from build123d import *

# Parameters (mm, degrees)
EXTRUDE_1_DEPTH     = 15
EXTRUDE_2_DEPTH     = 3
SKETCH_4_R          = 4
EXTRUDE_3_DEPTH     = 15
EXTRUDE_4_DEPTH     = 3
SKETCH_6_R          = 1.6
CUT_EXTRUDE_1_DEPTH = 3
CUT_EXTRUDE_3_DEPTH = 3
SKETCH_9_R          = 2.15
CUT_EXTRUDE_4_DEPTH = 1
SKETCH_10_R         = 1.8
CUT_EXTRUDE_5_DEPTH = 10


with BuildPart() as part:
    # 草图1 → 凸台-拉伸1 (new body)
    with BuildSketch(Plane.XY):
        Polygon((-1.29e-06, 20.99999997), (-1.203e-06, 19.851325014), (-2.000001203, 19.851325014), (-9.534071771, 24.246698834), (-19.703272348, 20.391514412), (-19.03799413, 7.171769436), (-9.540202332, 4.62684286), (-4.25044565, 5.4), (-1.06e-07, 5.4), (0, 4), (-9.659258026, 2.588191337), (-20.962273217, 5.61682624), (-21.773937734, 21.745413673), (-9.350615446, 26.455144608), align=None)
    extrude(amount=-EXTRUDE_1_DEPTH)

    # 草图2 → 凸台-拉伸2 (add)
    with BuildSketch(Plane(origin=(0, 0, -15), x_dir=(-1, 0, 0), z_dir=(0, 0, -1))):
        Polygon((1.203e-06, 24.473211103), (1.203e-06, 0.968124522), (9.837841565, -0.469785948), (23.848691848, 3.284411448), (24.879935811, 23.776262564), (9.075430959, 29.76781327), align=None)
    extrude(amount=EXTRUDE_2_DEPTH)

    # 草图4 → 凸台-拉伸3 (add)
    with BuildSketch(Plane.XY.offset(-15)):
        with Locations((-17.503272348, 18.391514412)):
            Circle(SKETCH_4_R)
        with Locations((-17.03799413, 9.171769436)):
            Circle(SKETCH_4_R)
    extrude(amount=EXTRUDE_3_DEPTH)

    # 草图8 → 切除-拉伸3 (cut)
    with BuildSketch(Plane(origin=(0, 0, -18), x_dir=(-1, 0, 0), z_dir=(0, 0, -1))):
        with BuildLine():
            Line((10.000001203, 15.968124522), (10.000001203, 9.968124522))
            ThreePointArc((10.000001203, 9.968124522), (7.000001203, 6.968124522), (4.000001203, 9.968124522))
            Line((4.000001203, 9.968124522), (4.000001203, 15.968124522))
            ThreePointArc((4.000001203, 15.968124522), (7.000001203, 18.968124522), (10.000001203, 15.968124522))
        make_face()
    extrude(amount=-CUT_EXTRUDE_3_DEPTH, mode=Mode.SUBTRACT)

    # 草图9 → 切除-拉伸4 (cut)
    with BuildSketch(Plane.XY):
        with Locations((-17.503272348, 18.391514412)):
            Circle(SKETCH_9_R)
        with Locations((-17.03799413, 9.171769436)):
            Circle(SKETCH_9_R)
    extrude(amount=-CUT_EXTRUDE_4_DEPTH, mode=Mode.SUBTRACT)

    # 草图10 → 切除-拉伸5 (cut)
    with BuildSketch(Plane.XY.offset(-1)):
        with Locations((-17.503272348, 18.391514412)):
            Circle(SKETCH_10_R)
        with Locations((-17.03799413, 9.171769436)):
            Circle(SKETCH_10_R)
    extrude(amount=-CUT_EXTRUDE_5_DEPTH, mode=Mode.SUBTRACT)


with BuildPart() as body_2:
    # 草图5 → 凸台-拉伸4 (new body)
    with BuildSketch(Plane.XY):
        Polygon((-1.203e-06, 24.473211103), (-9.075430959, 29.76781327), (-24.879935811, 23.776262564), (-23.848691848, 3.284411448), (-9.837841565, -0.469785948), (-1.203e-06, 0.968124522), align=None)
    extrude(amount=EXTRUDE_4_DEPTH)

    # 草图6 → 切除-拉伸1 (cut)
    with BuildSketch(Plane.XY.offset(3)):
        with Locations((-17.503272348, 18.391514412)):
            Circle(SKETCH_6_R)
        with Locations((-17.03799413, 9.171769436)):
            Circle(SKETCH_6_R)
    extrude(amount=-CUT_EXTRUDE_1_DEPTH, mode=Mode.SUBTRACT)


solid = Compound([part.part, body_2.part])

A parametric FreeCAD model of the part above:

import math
import FreeCAD as App
import Part
import Sketcher
Q = App.Units.Quantity


def add_polygon(sketch, points):
    """Adds a closed chain of lines whose ends are joined by coincident constraints."""
    first, n = sketch.GeometryCount, len(points)
    for a, b in zip(points, points[1:] + points[:1]):
        sketch.addGeometry(Part.LineSegment(App.Vector(*a, 0), App.Vector(*b, 0)), False)
    for i in range(n):
        sketch.addConstraint(Sketcher.Constraint("Coincident", first + i, 2, first + (i + 1) % n, 1))

doc = App.newDocument("Part")
body = doc.addObject("PartDesign::Body", "Body")

sketch1 = body.newObject("Sketcher::SketchObject", "Sketch")
sketch1.AttachmentSupport = (doc.getObject("XY_Plane"), [""])
sketch1.MapMode = "FlatFace"
add_polygon(sketch1, [(0, 19.9), (0, 21), (-9.4, 26.5), (-21.8, 21.7), (-21, 5.6), (-9.7, 2.6), (0, 4), (0, 5.4), (-4.3, 5.4), (-9.5, 4.6), (-19, 7.2), (-19.7, 20.4), (-9.5, 24.2), (-2, 19.9)])
sketch1.addConstraint(Sketcher.Constraint("Vertical", 0))
sketch1.addConstraint(Sketcher.Constraint("Vertical", 6))
sketch1.addConstraint(Sketcher.Constraint("Horizontal", 7))
sketch1.addConstraint(Sketcher.Constraint("Horizontal", 13))
sketch1.addConstraint(Sketcher.Constraint("PointOnObject", 0, 2, -2))
sketch1.addConstraint(Sketcher.Constraint("PointOnObject", 5, 2, -2))
sketch1.addConstraint(Sketcher.Constraint("Parallel", 5, 8))
sketch1.addConstraint(Sketcher.Constraint("Parallel", 4, 9))
sketch1.addConstraint(Sketcher.Constraint("Parallel", 3, 10))
sketch1.addConstraint(Sketcher.Constraint("Parallel", 2, 11))
sketch1.addConstraint(Sketcher.Constraint("Parallel", 1, 12))
sketch1.addConstraint(Sketcher.Constraint("DistanceX", 13, 1, 13, 2, 2.0))
sketch1.addConstraint(Sketcher.Constraint("Angle", 4, Q("-15.000005 deg")))
sketch1.addConstraint(Sketcher.Constraint("DistanceY", 6, 1, 6, 2, 1.4))
sketch1.addConstraint(Sketcher.Constraint("DistanceY", -1, 1, 0, 2, 21.0))
sketch1.addConstraint(Sketcher.Constraint("DistanceY", -1, 1, 5, 2, 4.0))
sketch1.addConstraint(Sketcher.Constraint("DistanceX", 3, 2, 10, 2, 1.259001))
sketch1.addConstraint(Sketcher.Constraint("Distance", 2, 13.286102))
sketch1.addConstraint(Sketcher.Constraint("DistanceY", -1, 1, 11, 2, 24.246699))
sketch1.addConstraint(Sketcher.Constraint("DistanceY", 10, 2, 2, 2, 1.353899))
sketch1.addConstraint(Sketcher.Constraint("DistanceX", 10, 2, 11, 2, 10.169201))
sketch1.addConstraint(Sketcher.Constraint("Distance", 5, 9.761889))
sketch1.addConstraint(Sketcher.Constraint("Distance", 8, 5.345961))
sketch1.addConstraint(Sketcher.Constraint("DistanceX", 7, 2, 7, 1, 4.250446))
sketch1.addConstraint(Sketcher.Constraint("DistanceY", 0, 1, 0, 2, 1.148675))
sketch1.addConstraint(Sketcher.Constraint("DistanceX", 4, 2, -1, 1, 9.659258))
sketch1.addConstraint(Sketcher.Constraint("DistanceY", -1, 1, 9, 2, 7.171769))
sketch1.addConstraint(Sketcher.Constraint("DistanceX", 11, 2, -1, 1, 9.534072))
pad1 = body.newObject("PartDesign::Pad", "Pad")
pad1.Profile = sketch1
pad1.Length = 15
pad1.Reversed = True

sketch2 = body.newObject("Sketcher::SketchObject", "Sketch001")
sketch2.AttachmentSupport = (doc.getObject("XY_Plane"), [""])
sketch2.MapMode = "FlatFace"
sketch2.AttachmentOffset = App.Placement(App.Vector(0, 0, -15), App.Rotation())
add_polygon(sketch2, [(0, 24), (0, 1), (-10, 0), (-24, 3), (-25, 24), (-9, 30)])
sketch2.addConstraint(Sketcher.Constraint("Vertical", 0))
sketch2.addConstraint(Sketcher.Constraint("PointOnObject", 0, 2, -2))
sketch2.addConstraint(Sketcher.Constraint("Angle", 2, Q("164.999995 deg")))
sketch2.addConstraint(Sketcher.Constraint("Distance", 2, 14.5051))
sketch2.addConstraint(Sketcher.Constraint("DistanceY", 1, 2, 4, 2, 30.237599))
sketch2.addConstraint(Sketcher.Constraint("DistanceY", 2, 2, 5, 2, 21.1888))
sketch2.addConstraint(Sketcher.Constraint("Distance", 1, 9.942368))
sketch2.addConstraint(Sketcher.Constraint("Distance", 5, 10.506961))
sketch2.addConstraint(Sketcher.Constraint("DistanceY", 0, 2, 0, 1, 23.505087))
sketch2.addConstraint(Sketcher.Constraint("DistanceY", -1, 1, 2, 2, 3.284411))
sketch2.addConstraint(Sketcher.Constraint("DistanceY", 2, 2, 3, 2, 20.491851))
sketch2.addConstraint(Sketcher.Constraint("Distance", 3, 20.517783))
pad2 = body.newObject("PartDesign::Pad", "Pad001")
pad2.Profile = sketch2
pad2.Length = 3
pad2.Reversed = True

sketch3 = body.newObject("Sketcher::SketchObject", "Sketch002")
sketch3.AttachmentSupport = (doc.getObject("XY_Plane"), [""])
sketch3.MapMode = "FlatFace"
sketch3.AttachmentOffset = App.Placement(App.Vector(0, 0, -15), App.Rotation())
sketch3.addGeometry(Part.Circle(App.Vector(-17.5, 18.4, 0), App.Vector(0, 0, 1), 4), False)
sketch3.addGeometry(Part.Circle(App.Vector(-17, 9.2, 0), App.Vector(0, 0, 1), 4), False)
sketch3.addConstraint(Sketcher.Constraint("Equal", 0, 1))
sketch3.addConstraint(Sketcher.Constraint("Diameter", 0, 8.0))
sketch3.addConstraint(Sketcher.Constraint("DistanceY", -1, 1, 1, 3, 9.171769))
sketch3.addConstraint(Sketcher.Constraint("DistanceX", 0, 3, 1, 3, 0.465278))
sketch3.addConstraint(Sketcher.Constraint("DistanceX", 0, 3, -1, 1, 17.503272))
sketch3.addConstraint(Sketcher.Constraint("DistanceY", -1, 1, 0, 3, 18.391514))
pad3 = body.newObject("PartDesign::Pad", "Pad002")
pad3.Profile = sketch3
pad3.Length = 15

sketch4 = body.newObject("Sketcher::SketchObject", "Sketch003")
sketch4.AttachmentSupport = (doc.getObject("XY_Plane"), [""])
sketch4.MapMode = "FlatFace"
sketch4.AttachmentOffset = App.Placement(App.Vector(0, 0, -18), App.Rotation())
sketch4.addGeometry(Part.LineSegment(App.Vector(-10, 10, 0), App.Vector(-10, 16, 0)), False)
sketch4.addGeometry(Part.ArcOfCircle(Part.Circle(App.Vector(-7, 16, 0), App.Vector(0, 0, 1), 3), math.radians(0), math.radians(180)), False)
sketch4.addGeometry(Part.LineSegment(App.Vector(-4, 16, 0), App.Vector(-4, 10, 0)), False)
sketch4.addGeometry(Part.ArcOfCircle(Part.Circle(App.Vector(-7, 10, 0), App.Vector(0, 0, 1), 3), math.radians(180), math.radians(360)), False)
sketch4.addConstraint(Sketcher.Constraint("Tangent", 0, 2, 1, 2))
sketch4.addConstraint(Sketcher.Constraint("Tangent", 1, 1, 2, 1))
sketch4.addConstraint(Sketcher.Constraint("Tangent", 2, 2, 3, 2))
sketch4.addConstraint(Sketcher.Constraint("Tangent", 3, 1, 0, 1))
sketch4.addConstraint(Sketcher.Constraint("Vertical", 0))
sketch4.addConstraint(Sketcher.Constraint("Vertical", 2))
sketch4.addConstraint(Sketcher.Constraint("Radius", 1, 3.0))
sketch4.addConstraint(Sketcher.Constraint("DistanceY", 0, 1, 0, 2, 6.0))
sketch4.addConstraint(Sketcher.Constraint("DistanceX", 1, 3, -1, 1, 7.000001))
sketch4.addConstraint(Sketcher.Constraint("DistanceY", -1, 1, 1, 3, 15.968125))
pocket1 = body.newObject("PartDesign::Pocket", "Pocket")
pocket1.Profile = sketch4
pocket1.Length = 3
pocket1.Reversed = True

sketch5 = body.newObject("Sketcher::SketchObject", "Sketch004")
sketch5.AttachmentSupport = (doc.getObject("XY_Plane"), [""])
sketch5.MapMode = "FlatFace"
sketch5.addGeometry(Part.Circle(App.Vector(-17.5, 18.4, 0), App.Vector(0, 0, 1), 2.1), False)
sketch5.addGeometry(Part.Circle(App.Vector(-17, 9.2, 0), App.Vector(0, 0, 1), 2.1), False)
sketch5.addConstraint(Sketcher.Constraint("Equal", 0, 1))
sketch5.addConstraint(Sketcher.Constraint("Diameter", 0, 4.3))
sketch5.addConstraint(Sketcher.Constraint("DistanceY", -1, 1, 1, 3, 9.171769))
sketch5.addConstraint(Sketcher.Constraint("DistanceX", 0, 3, 1, 3, 0.465278))
sketch5.addConstraint(Sketcher.Constraint("DistanceX", 0, 3, -1, 1, 17.503272))
sketch5.addConstraint(Sketcher.Constraint("DistanceY", -1, 1, 0, 3, 18.391514))
pocket2 = body.newObject("PartDesign::Pocket", "Pocket001")
pocket2.Profile = sketch5
pocket2.Length = 1

sketch6 = body.newObject("Sketcher::SketchObject", "Sketch005")
sketch6.AttachmentSupport = (doc.getObject("XY_Plane"), [""])
sketch6.MapMode = "FlatFace"
sketch6.AttachmentOffset = App.Placement(App.Vector(0, 0, -1), App.Rotation())
sketch6.addGeometry(Part.Circle(App.Vector(-17.5, 18.4, 0), App.Vector(0, 0, 1), 1.8), False)
sketch6.addGeometry(Part.Circle(App.Vector(-17, 9.2, 0), App.Vector(0, 0, 1), 1.8), False)
sketch6.addConstraint(Sketcher.Constraint("Equal", 0, 1))
sketch6.addConstraint(Sketcher.Constraint("Diameter", 0, 3.6))
sketch6.addConstraint(Sketcher.Constraint("DistanceY", -1, 1, 1, 3, 9.171769))
sketch6.addConstraint(Sketcher.Constraint("DistanceX", 0, 3, 1, 3, 0.465278))
sketch6.addConstraint(Sketcher.Constraint("DistanceX", 0, 3, -1, 1, 17.503272))
sketch6.addConstraint(Sketcher.Constraint("DistanceY", -1, 1, 0, 3, 18.391514))
pocket3 = body.newObject("PartDesign::Pocket", "Pocket002")
pocket3.Profile = sketch6
pocket3.Length = 10
body2 = doc.addObject("PartDesign::Body", "Body001")

sketch7 = body2.newObject("Sketcher::SketchObject", "Sketch006")
sketch7.AttachmentSupport = (doc.getObject("XY_Plane001"), [""])
sketch7.MapMode = "FlatFace"
add_polygon(sketch7, [(0, 24), (-9, 30), (-25, 24), (-24, 3), (-10, 0), (0, 1)])
sketch7.addConstraint(Sketcher.Constraint("Vertical", 5))
sketch7.addConstraint(Sketcher.Constraint("PointOnObject", 4, 2, -2))
sketch7.addConstraint(Sketcher.Constraint("Angle", 3, Q("-15.000005 deg")))
sketch7.addConstraint(Sketcher.Constraint("Distance", 3, 14.5051))
sketch7.addConstraint(Sketcher.Constraint("DistanceY", 2, 2, 0, 2, 26.483402))
sketch7.addConstraint(Sketcher.Constraint("DistanceY", 2, 2, 5, 2, 21.1888))
sketch7.addConstraint(Sketcher.Constraint("Distance", 0, 10.506961))
sketch7.addConstraint(Sketcher.Constraint("Distance", 4, 9.942368))
sketch7.addConstraint(Sketcher.Constraint("DistanceY", 5, 1, 5, 2, 23.505087))
sketch7.addConstraint(Sketcher.Constraint("DistanceY", -1, 1, 2, 2, 3.284411))
sketch7.addConstraint(Sketcher.Constraint("DistanceY", 1, 2, 0, 2, 5.991551))
sketch7.addConstraint(Sketcher.Constraint("Distance", 1, 16.902102))
pad4 = body2.newObject("PartDesign::Pad", "Pad003")
pad4.Profile = sketch7
pad4.Length = 3

sketch8 = body2.newObject("Sketcher::SketchObject", "Sketch007")
sketch8.AttachmentSupport = (doc.getObject("XY_Plane001"), [""])
sketch8.MapMode = "FlatFace"
sketch8.AttachmentOffset = App.Placement(App.Vector(0, 0, 3), App.Rotation())
sketch8.addGeometry(Part.Circle(App.Vector(-17.5, 18.4, 0), App.Vector(0, 0, 1), 1.6), False)
sketch8.addGeometry(Part.Circle(App.Vector(-17, 9.2, 0), App.Vector(0, 0, 1), 1.6), False)
sketch8.addConstraint(Sketcher.Constraint("Equal", 0, 1))
sketch8.addConstraint(Sketcher.Constraint("Diameter", 0, 3.2))
sketch8.addConstraint(Sketcher.Constraint("DistanceY", -1, 1, 1, 3, 9.171769))
sketch8.addConstraint(Sketcher.Constraint("DistanceX", 0, 3, 1, 3, 0.465278))
sketch8.addConstraint(Sketcher.Constraint("DistanceX", 0, 3, -1, 1, 17.503272))
sketch8.addConstraint(Sketcher.Constraint("DistanceY", -1, 1, 0, 3, 18.391514))
pocket4 = body2.newObject("PartDesign::Pocket", "Pocket003")
pocket4.Profile = sketch8
pocket4.Length = 3

doc.recompute()
